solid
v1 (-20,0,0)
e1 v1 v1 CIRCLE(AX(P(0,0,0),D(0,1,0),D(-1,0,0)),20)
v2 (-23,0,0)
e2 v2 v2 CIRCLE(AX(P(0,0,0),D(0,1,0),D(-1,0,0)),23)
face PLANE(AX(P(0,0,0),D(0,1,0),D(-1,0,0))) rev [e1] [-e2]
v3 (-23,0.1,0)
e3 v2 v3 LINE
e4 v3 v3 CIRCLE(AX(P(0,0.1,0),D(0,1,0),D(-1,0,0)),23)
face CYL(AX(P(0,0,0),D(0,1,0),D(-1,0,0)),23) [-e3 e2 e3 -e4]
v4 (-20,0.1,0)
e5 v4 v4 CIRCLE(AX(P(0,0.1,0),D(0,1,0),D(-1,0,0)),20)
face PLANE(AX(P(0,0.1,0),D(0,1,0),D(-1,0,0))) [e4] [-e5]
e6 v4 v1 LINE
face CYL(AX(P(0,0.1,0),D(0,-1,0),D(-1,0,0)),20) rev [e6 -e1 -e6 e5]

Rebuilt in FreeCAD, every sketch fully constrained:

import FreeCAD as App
import Part
import Sketcher
Q = App.Units.Quantity


def add_polygon(sketch, points):
    """Adds a closed chain of lines whose ends are joined by coincident constraints."""
    first, n = sketch.GeometryCount, len(points)
    for a, b in zip(points, points[1:] + points[:1]):
        sketch.addGeometry(Part.LineSegment(App.Vector(*a, 0), App.Vector(*b, 0)), False)
    for i in range(n):
        sketch.addConstraint(Sketcher.Constraint("Coincident", first + i, 2, first + (i + 1) % n, 1))

doc = App.newDocument("Part")
body = doc.addObject("PartDesign::Body", "Body")

# Sketch on XY plane
sketch1 = doc.addObject("Sketcher::SketchObject", "Sketch")
body.addObject(sketch1)
sketch1.AttachmentSupport = (doc.XY_Plane, [""])
sketch1.MapMode = "FlatFace"
add_polygon(sketch1, [(-23, 0), (-20, 0), (-20, 0.1), (-23, 0.1)])  # lines 0-3
sketch1.addConstraint([
    Sketcher.Constraint("Horizontal", 0),
    Sketcher.Constraint("Vertical", 1),
    Sketcher.Constraint("Horizontal", 2),
    Sketcher.Constraint("Vertical", 3),
    Sketcher.Constraint("PointOnObject", 0, 2, -1),
    Sketcher.Constraint("DistanceY", 1, 1, 1, 2, Q("0.1 mm")),
    Sketcher.Constraint("DistanceX", 0, 2, -1, 1, Q("20 mm")),
    Sketcher.Constraint("DistanceX", 2, 2, -1, 1, Q("23 mm")),
])
revolution = doc.addObject("PartDesign::Revolution", "Revolution")
body.addObject(revolution)
revolution.Profile = sketch1
revolution.ReferenceAxis = (sketch1, ["V_Axis"])
revolution.Angle = 360

doc.recompute()
